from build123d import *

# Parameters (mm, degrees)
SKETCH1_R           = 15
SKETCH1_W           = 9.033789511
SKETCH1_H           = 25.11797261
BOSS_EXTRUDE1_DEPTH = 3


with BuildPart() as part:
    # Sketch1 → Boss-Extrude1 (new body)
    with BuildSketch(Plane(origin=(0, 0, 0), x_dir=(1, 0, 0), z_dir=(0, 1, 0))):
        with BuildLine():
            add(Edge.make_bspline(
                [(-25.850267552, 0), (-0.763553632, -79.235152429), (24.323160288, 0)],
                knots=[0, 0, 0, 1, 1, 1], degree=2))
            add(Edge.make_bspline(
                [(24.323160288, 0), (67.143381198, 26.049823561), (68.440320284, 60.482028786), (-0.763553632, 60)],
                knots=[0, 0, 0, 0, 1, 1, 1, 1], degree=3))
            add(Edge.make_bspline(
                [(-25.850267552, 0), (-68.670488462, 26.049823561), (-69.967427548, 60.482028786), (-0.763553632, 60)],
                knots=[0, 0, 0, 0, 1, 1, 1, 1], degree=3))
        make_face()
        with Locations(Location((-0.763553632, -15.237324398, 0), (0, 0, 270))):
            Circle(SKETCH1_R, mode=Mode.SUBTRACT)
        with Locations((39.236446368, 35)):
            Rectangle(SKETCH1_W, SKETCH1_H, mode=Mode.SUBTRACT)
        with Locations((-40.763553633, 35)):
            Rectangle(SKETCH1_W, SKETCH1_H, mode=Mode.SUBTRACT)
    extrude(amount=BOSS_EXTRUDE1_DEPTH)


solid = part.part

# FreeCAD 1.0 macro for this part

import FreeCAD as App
import Part
import Sketcher
from FreeCAD import Vector
Q = App.Units.Quantity


def add_polygon(sketch, points):
    """Adds a closed chain of lines whose ends are joined by coincident constraints."""
    first, n = sketch.GeometryCount, len(points)
    for a, b in zip(points, points[1:] + points[:1]):
        sketch.addGeometry(Part.LineSegment(App.Vector(*a, 0), App.Vector(*b, 0)), False)
    for i in range(n):
        sketch.addConstraint(Sketcher.Constraint("Coincident", first + i, 2, first + (i + 1) % n, 1))

doc = App.newDocument("Part")
params = doc.addObject("Spreadsheet::Sheet", "Params")
for row, (alias, value) in enumerate([
    ("sketch1_diameter", "30 mm"),
    ("pad1_length", "3 mm"),
], start=1):
    params.set(f"A{row}", alias)
    params.set(f"B{row}", "=" + value)
    params.setAlias(f"B{row}", alias)

body = doc.addObject("PartDesign::Body", "Body")

sketch1 = body.newObject("Sketcher::SketchObject", "Sketch")
sketch1.AttachmentSupport = (doc.getObject("XZ_Plane"), [""])
sketch1.MapMode = "FlatFace"
sketch1.addGeometry(Part.BSplineCurve([Vector(-25.850268, 0, 0), Vector(-0.763554, 79.235152, 0), Vector(24.32316, 0, 0)], [3, 3], [0, 1], False, 2, [1, 1, 1], False), False)
sketch1.addGeometry(Part.BSplineCurve([Vector(24.32316, 0, 0), Vector(67.143381, -26.049824, 0), Vector(68.44032, -60.482029, 0), Vector(-0.763554, -60, 0)], [4, 4], [0, 1], False, 3, [1, 1, 1, 1], False), False)
sketch1.addGeometry(Part.BSplineCurve([Vector(-25.850268, 0, 0), Vector(-68.670488, -26.049824, 0), Vector(-69.967428, -60.482029, 0), Vector(-0.763554, -60, 0)], [4, 4], [0, 1], False, 3, [1, 1, 1, 1], False), False)
sketch1.addGeometry(Part.Circle(Vector(-0.763554, 15.237324, 0), Vector(0, 0, 1), 15), False)
add_polygon(sketch1, [(-36.246659, -22.441014), (-45.280448, -22.441014), (-45.280448, -47.558986), (-36.246659, -47.558986)])
add_polygon(sketch1, [(43.753341, -22.441014), (34.719552, -22.441014), (34.719552, -47.558986), (43.753341, -47.558986)])
sketch1.addConstraint(Sketcher.Constraint("Block", 0))
sketch1.addConstraint(Sketcher.Constraint("Block", 1))
sketch1.addConstraint(Sketcher.Constraint("Block", 2))
sketch1.addConstraint(Sketcher.Constraint("Horizontal", 4))
sketch1.addConstraint(Sketcher.Constraint("Vertical", 5))
sketch1.addConstraint(Sketcher.Constraint("Horizontal", 6))
sketch1.addConstraint(Sketcher.Constraint("Vertical", 7))
sketch1.addConstraint(Sketcher.Constraint("Horizontal", 8))
sketch1.addConstraint(Sketcher.Constraint("Vertical", 9))
sketch1.addConstraint(Sketcher.Constraint("Horizontal", 10))
sketch1.addConstraint(Sketcher.Constraint("Vertical", 11))
sketch1.addConstraint(Sketcher.Constraint("Horizontal", 7, 2, 8, 2))
sketch1.addConstraint(Sketcher.Constraint("Horizontal", 6, 2, 9, 2))
sketch1.addConstraint(Sketcher.Constraint("Equal", 6, 8))
sketch1.addConstraint(Sketcher.Constraint("Diameter", 3, Q("30 mm")))
sketch1.addConstraint(Sketcher.Constraint("DistanceX", 4, 2, 8, 2, Q("80 mm")))
sketch1.addConstraint(Sketcher.Constraint("DistanceX", 4, 2, 4, 1, Q("9.03379 mm")))
sketch1.addConstraint(Sketcher.Constraint("DistanceY", 5, 2, 5, 1, Q("25.117973 mm")))
sketch1.addConstraint(Sketcher.Constraint("DistanceX", 4, 2, -1, 1, Q("45.280448 mm")))
sketch1.addConstraint(Sketcher.Constraint("DistanceY", 4, 2, 3, 3, Q("37.678338 mm")))
sketch1.addConstraint(Sketcher.Constraint("DistanceX", 3, 3, -1, 1, Q("0.763554 mm")))
sketch1.addConstraint(Sketcher.Constraint("DistanceY", -1, 1, 3, 3, Q("15.237324 mm")))
sketch1.setExpression("Constraints[22]", "Params.sketch1_diameter")
pad1 = body.newObject("PartDesign::Pad", "Pad")
pad1.Profile = sketch1
pad1.setExpression("Length", "Params.pad1_length")
pad1.Reversed = True

doc.recompute()
